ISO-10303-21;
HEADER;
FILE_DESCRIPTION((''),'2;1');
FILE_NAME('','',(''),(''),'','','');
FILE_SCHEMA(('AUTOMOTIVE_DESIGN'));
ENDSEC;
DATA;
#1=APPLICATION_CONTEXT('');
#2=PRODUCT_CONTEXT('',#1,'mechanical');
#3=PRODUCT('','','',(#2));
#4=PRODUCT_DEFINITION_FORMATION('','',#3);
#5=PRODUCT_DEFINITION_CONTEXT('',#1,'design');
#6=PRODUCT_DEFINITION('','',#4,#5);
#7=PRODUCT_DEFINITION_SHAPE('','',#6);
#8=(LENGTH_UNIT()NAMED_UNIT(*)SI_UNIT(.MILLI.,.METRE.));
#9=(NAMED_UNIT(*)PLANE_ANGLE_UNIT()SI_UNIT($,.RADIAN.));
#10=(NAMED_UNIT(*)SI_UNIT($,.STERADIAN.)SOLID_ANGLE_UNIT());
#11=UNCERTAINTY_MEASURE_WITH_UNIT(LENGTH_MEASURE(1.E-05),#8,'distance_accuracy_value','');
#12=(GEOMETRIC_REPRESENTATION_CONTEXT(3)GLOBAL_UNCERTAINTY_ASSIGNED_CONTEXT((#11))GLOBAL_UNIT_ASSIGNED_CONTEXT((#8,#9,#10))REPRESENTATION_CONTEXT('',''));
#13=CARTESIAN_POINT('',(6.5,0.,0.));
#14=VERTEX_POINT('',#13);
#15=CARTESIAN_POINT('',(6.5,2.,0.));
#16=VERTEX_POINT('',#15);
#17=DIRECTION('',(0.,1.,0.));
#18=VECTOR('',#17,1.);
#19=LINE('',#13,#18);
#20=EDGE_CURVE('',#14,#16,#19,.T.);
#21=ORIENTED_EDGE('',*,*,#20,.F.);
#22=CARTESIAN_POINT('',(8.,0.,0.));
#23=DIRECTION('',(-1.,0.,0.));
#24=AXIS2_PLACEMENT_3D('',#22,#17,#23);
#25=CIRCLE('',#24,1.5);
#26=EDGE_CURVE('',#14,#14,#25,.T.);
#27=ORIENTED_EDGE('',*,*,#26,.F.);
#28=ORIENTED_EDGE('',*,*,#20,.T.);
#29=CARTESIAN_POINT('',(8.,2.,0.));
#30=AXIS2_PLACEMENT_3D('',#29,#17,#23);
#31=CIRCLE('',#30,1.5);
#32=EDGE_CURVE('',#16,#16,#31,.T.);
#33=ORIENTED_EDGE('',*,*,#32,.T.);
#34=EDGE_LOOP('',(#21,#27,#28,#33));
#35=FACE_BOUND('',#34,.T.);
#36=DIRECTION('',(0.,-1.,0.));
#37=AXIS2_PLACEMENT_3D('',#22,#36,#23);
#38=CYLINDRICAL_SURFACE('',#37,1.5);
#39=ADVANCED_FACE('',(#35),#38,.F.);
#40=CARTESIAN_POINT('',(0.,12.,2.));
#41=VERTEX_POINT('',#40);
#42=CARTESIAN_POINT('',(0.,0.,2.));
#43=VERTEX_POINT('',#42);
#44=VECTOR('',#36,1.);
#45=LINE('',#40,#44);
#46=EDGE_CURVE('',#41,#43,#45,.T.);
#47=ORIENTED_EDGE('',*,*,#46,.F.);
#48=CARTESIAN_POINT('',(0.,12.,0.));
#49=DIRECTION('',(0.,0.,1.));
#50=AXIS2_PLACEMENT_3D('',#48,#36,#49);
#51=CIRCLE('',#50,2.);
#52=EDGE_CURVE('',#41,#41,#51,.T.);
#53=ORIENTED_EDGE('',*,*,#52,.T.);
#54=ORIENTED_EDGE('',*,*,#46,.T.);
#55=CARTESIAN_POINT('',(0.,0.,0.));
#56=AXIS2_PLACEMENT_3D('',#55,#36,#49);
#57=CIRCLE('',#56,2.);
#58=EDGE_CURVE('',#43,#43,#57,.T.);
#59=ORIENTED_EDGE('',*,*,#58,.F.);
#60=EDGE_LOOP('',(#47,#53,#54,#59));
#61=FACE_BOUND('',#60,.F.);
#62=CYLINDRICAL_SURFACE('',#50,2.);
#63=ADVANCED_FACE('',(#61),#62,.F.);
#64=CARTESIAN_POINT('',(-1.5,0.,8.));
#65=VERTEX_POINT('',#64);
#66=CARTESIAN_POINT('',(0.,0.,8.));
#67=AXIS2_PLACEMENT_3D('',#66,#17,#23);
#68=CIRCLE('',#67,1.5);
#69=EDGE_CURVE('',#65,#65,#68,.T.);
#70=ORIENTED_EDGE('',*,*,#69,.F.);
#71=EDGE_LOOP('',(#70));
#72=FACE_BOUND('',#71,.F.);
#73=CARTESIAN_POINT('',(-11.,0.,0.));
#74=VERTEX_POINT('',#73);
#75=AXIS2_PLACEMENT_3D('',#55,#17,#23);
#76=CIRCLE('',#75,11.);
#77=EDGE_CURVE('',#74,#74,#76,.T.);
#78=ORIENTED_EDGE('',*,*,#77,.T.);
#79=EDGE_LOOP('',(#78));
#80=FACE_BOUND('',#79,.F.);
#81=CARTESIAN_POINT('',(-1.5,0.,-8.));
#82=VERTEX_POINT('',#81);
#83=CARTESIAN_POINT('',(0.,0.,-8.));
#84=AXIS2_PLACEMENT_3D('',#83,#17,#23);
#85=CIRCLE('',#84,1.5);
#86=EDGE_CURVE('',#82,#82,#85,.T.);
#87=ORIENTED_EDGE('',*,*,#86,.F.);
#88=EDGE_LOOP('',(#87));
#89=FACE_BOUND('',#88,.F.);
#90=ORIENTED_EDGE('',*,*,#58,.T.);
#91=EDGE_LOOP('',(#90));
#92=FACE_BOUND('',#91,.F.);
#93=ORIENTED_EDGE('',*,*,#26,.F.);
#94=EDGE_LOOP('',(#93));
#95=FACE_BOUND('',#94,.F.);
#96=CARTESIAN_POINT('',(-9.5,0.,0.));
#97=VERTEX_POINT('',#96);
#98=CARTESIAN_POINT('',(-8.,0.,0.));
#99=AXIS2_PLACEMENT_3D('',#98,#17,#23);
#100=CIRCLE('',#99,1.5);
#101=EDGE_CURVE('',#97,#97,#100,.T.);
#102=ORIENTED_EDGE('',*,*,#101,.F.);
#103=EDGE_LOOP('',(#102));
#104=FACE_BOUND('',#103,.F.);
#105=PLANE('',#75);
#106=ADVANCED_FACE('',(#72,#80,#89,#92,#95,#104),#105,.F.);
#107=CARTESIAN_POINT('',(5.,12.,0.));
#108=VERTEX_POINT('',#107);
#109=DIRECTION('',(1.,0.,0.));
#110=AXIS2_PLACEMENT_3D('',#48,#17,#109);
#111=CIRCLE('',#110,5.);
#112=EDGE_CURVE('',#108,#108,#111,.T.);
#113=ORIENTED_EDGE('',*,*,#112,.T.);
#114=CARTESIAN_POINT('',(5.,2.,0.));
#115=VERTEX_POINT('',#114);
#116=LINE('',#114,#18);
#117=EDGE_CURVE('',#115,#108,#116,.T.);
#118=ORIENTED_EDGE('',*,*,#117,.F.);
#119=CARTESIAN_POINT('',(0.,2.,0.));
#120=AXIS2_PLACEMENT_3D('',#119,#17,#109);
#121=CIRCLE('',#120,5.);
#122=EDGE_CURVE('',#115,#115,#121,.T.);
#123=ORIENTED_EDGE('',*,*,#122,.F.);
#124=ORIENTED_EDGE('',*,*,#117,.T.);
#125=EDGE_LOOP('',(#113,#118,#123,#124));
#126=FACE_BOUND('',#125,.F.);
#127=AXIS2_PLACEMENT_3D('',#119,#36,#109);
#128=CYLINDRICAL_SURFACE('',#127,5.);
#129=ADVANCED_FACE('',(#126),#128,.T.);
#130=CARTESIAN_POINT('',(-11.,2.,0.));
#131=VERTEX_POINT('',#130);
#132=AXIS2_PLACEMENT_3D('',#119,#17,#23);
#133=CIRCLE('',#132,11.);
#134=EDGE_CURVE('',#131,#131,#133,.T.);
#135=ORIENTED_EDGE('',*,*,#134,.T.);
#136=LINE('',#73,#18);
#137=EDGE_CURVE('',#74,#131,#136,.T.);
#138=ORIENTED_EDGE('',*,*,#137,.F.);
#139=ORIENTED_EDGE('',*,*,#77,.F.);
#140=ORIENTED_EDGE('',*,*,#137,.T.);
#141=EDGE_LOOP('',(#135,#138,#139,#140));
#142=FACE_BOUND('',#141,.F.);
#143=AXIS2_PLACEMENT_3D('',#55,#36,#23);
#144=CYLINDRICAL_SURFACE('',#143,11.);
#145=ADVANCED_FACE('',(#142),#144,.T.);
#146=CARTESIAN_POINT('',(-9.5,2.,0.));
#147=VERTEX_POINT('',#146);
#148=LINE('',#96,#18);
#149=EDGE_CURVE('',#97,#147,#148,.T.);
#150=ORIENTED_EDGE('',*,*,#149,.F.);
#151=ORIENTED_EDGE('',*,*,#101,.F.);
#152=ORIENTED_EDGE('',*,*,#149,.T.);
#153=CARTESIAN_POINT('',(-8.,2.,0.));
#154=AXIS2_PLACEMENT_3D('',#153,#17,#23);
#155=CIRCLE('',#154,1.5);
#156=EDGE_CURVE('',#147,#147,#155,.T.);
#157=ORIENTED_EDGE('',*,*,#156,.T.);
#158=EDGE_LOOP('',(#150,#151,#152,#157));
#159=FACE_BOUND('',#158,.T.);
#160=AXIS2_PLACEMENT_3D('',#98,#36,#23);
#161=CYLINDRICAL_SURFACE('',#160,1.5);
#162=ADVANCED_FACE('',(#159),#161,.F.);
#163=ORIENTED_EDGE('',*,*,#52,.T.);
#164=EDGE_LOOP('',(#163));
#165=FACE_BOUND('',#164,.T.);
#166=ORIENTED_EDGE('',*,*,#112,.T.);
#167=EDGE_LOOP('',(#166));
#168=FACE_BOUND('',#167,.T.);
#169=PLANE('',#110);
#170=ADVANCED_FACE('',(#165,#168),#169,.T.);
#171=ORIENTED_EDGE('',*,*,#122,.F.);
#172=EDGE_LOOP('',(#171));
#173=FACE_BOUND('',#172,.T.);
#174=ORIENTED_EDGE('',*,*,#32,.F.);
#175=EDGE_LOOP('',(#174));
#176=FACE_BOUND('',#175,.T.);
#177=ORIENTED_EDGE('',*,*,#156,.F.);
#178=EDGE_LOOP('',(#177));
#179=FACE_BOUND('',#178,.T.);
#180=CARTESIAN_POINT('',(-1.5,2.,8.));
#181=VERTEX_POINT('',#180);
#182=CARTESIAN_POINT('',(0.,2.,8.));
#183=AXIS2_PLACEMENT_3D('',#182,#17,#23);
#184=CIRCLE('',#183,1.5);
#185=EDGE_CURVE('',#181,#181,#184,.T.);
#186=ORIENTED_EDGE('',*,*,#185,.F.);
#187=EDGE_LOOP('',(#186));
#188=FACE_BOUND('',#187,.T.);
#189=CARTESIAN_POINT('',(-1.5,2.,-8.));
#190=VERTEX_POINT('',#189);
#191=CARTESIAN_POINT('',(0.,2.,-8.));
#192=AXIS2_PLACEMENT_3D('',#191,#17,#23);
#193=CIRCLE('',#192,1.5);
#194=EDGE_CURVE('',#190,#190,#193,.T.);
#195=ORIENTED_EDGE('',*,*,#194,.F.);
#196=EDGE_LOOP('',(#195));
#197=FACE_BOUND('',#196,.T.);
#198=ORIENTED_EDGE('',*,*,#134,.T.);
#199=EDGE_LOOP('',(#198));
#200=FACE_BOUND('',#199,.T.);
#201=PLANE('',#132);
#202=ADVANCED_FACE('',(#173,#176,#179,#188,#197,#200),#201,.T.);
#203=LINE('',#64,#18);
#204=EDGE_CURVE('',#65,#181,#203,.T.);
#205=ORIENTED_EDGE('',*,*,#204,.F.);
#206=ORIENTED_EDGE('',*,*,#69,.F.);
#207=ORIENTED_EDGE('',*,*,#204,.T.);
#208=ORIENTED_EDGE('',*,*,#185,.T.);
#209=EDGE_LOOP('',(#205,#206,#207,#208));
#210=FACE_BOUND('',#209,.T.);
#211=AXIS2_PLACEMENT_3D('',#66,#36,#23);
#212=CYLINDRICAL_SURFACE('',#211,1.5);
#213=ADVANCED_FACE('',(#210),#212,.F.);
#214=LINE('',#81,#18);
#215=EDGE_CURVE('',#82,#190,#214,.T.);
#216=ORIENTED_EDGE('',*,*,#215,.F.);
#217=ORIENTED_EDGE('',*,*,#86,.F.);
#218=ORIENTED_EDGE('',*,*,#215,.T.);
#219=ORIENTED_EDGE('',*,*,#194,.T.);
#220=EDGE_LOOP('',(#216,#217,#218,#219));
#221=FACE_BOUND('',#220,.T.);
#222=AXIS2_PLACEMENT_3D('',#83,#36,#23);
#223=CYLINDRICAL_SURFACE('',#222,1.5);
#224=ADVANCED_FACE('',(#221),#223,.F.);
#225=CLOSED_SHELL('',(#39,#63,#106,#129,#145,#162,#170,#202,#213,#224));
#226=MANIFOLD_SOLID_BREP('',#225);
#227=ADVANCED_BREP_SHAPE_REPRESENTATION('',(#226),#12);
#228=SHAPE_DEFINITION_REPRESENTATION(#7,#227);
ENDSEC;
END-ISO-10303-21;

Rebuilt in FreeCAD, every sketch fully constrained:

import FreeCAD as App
import Part
import Sketcher

V = App.Vector

doc = App.newDocument("Part")
body = doc.addObject("PartDesign::Body", "Body")

sketch1 = body.newObject("Sketcher::SketchObject", "Sketch")
sketch1.AttachmentSupport = (doc.getObject("XZ_Plane"), [""])
sketch1.MapMode = "FlatFace"
sketch1.addGeometry([
    Part.Circle(V(0, 0, 0), V(0, 0, 1), 11),
    Part.Circle(V(0, -8, 0), V(0, 0, 1), 1.5),
    Part.Circle(V(8, 0, 0), V(0, 0, 1), 1.5),
    Part.Circle(V(-8, 0, 0), V(0, 0, 1), 1.5),
    Part.Circle(V(0, 8, 0), V(0, 0, 1), 1.5),
], False)
sketch1.addConstraint([
    Sketcher.Constraint("Coincident", 0, 3, -1, 1),
    Sketcher.Constraint("Equal", 1, 2),
    Sketcher.Constraint("Equal", 2, 3),
    Sketcher.Constraint("Equal", 3, 4),
    Sketcher.Constraint("Symmetric", 2, 3, 3, 3, -1, 1),
    Sketcher.Constraint("Symmetric", 1, 3, 4, 3, -1, 1),
    Sketcher.Constraint("PointOnObject", 1, 3, -2),
    Sketcher.Constraint("PointOnObject", 2, 3, -1),
    Sketcher.Constraint("Diameter", 0, 22.0),
    Sketcher.Constraint("Diameter", 1, 3.0),
    Sketcher.Constraint("DistanceY", 1, 3, -1, 1, 8.0),
    Sketcher.Constraint("DistanceX", -1, 1, 2, 3, 8.0),
])
pad1 = body.newObject("PartDesign::Pad", "Pad")
pad1.Profile = sketch1
pad1.Length = 2
pad1.Reversed = True

sketch2 = body.newObject("Sketcher::SketchObject", "Sketch001")
sketch2.AttachmentSupport = (doc.getObject("XZ_Plane"), [""])
sketch2.MapMode = "FlatFace"
sketch2.AttachmentOffset = App.Placement(V(0, 0, -2), App.Rotation())
sketch2.addGeometry(Part.Circle(V(0, 0, 0), V(0, 0, 1), 5), False)
sketch2.addConstraint([
    Sketcher.Constraint("Coincident", 0, 3, -1, 1),
    Sketcher.Constraint("Diameter", 0, 10.0),
])
pad2 = body.newObject("PartDesign::Pad", "Pad001")
pad2.Profile = sketch2
pad2.Length = 10
pad2.Reversed = True

sketch3 = body.newObject("Sketcher::SketchObject", "Sketch002")
sketch3.AttachmentSupport = (doc.getObject("XZ_Plane"), [""])
sketch3.MapMode = "FlatFace"
sketch3.AttachmentOffset = App.Placement(V(0, 0, -12), App.Rotation())
sketch3.addGeometry(Part.Circle(V(0, 0, 0), V(0, 0, 1), 2), False)
sketch3.addConstraint([
    Sketcher.Constraint("Coincident", 0, 3, -1, 1),
    Sketcher.Constraint("Diameter", 0, 4.0),
])
doc.recompute()
hole = body.newObject("PartDesign::Hole", "Hole")
hole.Profile = sketch3
hole.ThreadType = "None"
hole.Diameter = 4
hole.DepthType = "ThroughAll"
hole.Reversed = True

doc.recompute()
